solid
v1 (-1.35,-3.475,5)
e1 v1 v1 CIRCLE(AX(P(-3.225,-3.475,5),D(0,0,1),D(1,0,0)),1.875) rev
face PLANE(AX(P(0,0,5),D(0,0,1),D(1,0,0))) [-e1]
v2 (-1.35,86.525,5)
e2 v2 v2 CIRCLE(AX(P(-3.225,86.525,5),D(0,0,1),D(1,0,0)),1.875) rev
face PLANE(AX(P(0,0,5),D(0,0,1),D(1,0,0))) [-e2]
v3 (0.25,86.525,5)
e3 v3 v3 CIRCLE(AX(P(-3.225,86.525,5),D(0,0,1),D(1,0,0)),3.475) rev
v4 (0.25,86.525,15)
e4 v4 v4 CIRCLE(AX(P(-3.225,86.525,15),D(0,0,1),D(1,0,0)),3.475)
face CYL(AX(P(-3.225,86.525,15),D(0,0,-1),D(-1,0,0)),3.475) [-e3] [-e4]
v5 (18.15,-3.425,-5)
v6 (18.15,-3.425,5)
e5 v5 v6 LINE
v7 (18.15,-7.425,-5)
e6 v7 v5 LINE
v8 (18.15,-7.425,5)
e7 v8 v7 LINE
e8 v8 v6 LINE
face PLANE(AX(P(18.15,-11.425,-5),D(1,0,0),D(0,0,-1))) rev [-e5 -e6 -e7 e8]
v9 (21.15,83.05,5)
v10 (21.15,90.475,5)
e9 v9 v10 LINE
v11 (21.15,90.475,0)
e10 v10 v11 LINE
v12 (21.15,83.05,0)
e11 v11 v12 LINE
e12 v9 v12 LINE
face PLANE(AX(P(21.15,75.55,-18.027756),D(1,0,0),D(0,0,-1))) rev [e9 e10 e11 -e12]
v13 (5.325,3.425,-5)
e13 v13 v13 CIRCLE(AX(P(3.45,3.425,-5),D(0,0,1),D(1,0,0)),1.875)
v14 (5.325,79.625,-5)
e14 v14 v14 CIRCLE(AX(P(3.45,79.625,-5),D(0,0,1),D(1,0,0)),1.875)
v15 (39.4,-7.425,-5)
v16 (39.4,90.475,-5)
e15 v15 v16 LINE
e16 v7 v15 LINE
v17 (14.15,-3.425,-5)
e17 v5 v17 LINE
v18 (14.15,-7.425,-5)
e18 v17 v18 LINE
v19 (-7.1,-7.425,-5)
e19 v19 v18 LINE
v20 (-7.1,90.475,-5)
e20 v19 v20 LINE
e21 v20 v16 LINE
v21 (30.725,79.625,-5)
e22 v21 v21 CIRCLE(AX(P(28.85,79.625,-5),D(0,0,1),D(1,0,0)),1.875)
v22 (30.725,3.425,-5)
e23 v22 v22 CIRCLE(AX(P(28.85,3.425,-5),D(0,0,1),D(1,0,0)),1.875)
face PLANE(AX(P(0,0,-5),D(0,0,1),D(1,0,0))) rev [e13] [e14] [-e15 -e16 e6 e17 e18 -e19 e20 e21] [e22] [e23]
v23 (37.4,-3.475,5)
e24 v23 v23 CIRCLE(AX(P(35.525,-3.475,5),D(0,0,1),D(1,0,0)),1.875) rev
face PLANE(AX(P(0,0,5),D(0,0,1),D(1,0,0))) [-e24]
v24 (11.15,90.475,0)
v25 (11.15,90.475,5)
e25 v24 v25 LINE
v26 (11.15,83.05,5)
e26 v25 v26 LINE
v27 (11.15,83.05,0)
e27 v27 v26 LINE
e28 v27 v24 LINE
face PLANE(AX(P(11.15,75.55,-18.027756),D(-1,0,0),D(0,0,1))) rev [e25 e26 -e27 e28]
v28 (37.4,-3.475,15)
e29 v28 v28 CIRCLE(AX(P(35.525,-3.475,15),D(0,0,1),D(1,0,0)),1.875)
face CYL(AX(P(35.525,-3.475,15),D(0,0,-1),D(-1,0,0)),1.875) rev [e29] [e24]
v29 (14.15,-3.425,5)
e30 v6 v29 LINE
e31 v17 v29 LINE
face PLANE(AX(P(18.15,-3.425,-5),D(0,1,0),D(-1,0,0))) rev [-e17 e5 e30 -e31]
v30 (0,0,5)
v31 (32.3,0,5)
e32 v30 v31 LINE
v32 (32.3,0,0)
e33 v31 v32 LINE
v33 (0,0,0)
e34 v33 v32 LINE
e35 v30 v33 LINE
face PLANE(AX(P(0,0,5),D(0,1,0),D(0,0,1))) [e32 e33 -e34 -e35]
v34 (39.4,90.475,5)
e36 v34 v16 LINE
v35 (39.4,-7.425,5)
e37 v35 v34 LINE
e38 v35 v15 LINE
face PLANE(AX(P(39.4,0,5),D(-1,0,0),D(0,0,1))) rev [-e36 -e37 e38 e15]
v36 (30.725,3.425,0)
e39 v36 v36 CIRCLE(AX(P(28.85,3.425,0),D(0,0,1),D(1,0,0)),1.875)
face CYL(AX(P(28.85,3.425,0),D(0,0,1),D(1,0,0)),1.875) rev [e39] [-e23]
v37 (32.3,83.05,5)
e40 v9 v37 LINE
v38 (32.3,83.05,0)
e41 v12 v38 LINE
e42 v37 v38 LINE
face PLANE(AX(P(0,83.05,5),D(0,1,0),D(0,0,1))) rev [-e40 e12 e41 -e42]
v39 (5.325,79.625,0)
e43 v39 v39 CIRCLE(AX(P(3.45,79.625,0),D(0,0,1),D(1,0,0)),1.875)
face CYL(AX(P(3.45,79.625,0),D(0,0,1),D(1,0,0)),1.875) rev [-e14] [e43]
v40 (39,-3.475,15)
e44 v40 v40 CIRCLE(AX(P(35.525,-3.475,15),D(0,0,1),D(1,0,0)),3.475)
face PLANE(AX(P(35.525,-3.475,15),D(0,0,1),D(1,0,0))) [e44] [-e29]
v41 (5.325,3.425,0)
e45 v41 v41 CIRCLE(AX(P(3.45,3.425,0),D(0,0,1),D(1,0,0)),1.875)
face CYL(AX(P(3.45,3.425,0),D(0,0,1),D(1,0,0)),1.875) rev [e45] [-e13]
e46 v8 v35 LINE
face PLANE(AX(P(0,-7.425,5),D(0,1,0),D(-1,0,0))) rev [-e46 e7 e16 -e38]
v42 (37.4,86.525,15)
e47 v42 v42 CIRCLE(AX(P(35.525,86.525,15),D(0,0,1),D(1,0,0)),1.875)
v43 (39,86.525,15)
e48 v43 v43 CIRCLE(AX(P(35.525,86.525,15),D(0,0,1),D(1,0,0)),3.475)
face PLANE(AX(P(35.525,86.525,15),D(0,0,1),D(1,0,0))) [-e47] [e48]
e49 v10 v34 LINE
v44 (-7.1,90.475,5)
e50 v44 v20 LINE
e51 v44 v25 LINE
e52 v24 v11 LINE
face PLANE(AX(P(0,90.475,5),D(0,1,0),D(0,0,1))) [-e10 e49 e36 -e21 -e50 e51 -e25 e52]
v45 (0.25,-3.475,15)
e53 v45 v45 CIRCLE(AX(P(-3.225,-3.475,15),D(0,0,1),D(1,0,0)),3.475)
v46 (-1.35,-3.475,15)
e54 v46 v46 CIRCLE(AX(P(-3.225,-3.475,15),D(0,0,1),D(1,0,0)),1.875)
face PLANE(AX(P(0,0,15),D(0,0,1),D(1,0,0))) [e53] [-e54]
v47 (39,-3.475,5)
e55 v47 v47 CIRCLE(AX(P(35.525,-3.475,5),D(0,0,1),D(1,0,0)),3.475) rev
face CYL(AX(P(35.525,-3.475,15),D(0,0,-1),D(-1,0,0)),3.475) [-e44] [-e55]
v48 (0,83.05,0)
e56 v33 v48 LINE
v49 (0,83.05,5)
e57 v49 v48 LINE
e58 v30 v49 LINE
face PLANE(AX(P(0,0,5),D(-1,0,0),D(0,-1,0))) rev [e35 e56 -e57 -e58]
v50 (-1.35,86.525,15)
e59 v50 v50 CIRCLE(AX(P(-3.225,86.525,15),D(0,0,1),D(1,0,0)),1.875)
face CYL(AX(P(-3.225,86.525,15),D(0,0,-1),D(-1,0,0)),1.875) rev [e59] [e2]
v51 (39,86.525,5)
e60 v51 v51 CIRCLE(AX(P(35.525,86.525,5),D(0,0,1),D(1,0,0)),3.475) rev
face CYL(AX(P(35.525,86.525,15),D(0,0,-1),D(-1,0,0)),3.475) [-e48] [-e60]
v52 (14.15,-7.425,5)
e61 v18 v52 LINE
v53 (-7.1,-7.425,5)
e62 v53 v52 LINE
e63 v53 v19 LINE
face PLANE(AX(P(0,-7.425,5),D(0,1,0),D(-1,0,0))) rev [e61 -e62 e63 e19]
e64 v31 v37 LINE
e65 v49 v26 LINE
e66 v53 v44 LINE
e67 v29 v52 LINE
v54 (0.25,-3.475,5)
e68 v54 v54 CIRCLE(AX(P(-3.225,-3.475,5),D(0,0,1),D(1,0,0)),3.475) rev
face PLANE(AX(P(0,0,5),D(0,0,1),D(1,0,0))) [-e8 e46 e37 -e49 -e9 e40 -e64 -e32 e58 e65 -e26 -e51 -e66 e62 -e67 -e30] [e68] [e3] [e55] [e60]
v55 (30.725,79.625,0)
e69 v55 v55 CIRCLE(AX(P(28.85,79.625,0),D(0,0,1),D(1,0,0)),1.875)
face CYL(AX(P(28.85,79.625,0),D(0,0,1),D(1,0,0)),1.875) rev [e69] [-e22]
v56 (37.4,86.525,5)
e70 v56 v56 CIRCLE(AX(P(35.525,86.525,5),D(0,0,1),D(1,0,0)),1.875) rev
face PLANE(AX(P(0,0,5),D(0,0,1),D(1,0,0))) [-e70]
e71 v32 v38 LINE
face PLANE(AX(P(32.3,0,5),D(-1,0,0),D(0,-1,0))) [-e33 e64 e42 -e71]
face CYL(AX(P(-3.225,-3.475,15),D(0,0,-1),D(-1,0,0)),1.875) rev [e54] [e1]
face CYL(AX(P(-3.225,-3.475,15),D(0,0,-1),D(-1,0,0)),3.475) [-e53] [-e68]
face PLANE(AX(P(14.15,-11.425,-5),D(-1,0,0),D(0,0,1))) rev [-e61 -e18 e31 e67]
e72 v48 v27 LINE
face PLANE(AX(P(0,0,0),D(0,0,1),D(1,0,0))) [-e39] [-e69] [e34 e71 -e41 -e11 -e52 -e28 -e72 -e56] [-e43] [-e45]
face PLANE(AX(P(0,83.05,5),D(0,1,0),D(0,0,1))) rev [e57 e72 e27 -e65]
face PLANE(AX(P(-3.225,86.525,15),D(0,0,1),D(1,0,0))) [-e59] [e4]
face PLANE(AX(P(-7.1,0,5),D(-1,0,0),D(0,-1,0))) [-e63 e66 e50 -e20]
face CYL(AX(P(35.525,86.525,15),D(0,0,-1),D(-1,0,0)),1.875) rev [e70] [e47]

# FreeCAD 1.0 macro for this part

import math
import FreeCAD as App
import Part
import Sketcher
from FreeCAD import Vector
Q = App.Units.Quantity

doc = App.newDocument("Part")
params = doc.addObject("Spreadsheet::Sheet", "Params")
for row, (alias, value) in enumerate([
    ("sketch1_width", "46.5 mm"),
    ("sketch1_width2", "32.3 mm"),
    ("sketch1_height", "97.9 mm"),
    ("sketch1_height2", "83.05 mm"),
    ("pad1_length", "10 mm"),
    ("sketch2_width", "32.3 mm"),
    ("sketch2_height", "83.05 mm"),
    ("pad2_length", "5 mm"),
    ("sketch3_diameter", "3.75 mm"),
    ("hole_diameter", "3.75 mm"),
    ("sketch4_diameter", "6.95 mm"),
    ("sketch4_diameter2", "3.75 mm"),
    ("pad3_length", "15 mm"),
    ("sketch5_width", "10 mm"),
    ("sketch5_height", "15 mm"),
    ("pocket1_length", "100.187124 mm"),
    ("pocket1_length2", "5 mm"),
    ("sketch6_width", "4 mm"),
    ("sketch6_height", "8 mm"),
    ("sketch7_radius", "29 mm"),
    ("sketch7_radius2", "28.95 mm"),
    ("pad4_length", "97.55 mm"),
    ("sketch8_radius", "29 mm"),
    ("sketch8_radius2", "28.95 mm"),
], start=1):
    params.set(f"A{row}", alias)
    params.set(f"B{row}", "=" + value)
    params.setAlias(f"B{row}", alias)

body = doc.addObject("PartDesign::Body", "Body")

# Sketch on XY plane
sketch1 = body.newObject("Sketcher::SketchObject", "Sketch")
sketch1.AttachmentSupport = (doc.getObject("XY_Plane"), [""])
sketch1.MapMode = "FlatFace"
sketch1.addGeometry([
    Part.LineSegment(Vector(-7, 90, 0), Vector(-7, -7, 0)),  # 0
    Part.LineSegment(Vector(-7, -7, 0), Vector(39, -7, 0)),  # 1
    Part.LineSegment(Vector(39, -7, 0), Vector(39, 90, 0)),  # 2
    Part.LineSegment(Vector(39, 90, 0), Vector(-7, 90, 0)),  # 3
    Part.LineSegment(Vector(32, 0, 0), Vector(0, 0, 0)),  # 4
    Part.LineSegment(Vector(0, 0, 0), Vector(0, 83, 0)),  # 5
    Part.LineSegment(Vector(0, 83, 0), Vector(32, 83, 0)),  # 6
    Part.LineSegment(Vector(32, 83, 0), Vector(32, 0, 0)),  # 7
], False)
sketch1.addConstraint([
    Sketcher.Constraint("Coincident", 0, 2, 1, 1),
    Sketcher.Constraint("Coincident", 1, 2, 2, 1),
    Sketcher.Constraint("Coincident", 2, 2, 3, 1),
    Sketcher.Constraint("Coincident", 3, 2, 0, 1),
    Sketcher.Constraint("Coincident", 4, 2, 5, 1),
    Sketcher.Constraint("Coincident", 5, 2, 6, 1),
    Sketcher.Constraint("Coincident", 6, 2, 7, 1),
    Sketcher.Constraint("Coincident", 7, 2, 4, 1),
    Sketcher.Constraint("Vertical", 0),
    Sketcher.Constraint("Horizontal", 1),
    Sketcher.Constraint("Vertical", 2),
    Sketcher.Constraint("Horizontal", 3),
    Sketcher.Constraint("Horizontal", 4),
    Sketcher.Constraint("Vertical", 5),
    Sketcher.Constraint("Horizontal", 6),
    Sketcher.Constraint("Vertical", 7),
    Sketcher.Constraint("Coincident", 4, 2, -1, 1),
    Sketcher.Constraint("DistanceX", 1, 1, 1, 2, Q("46.5 mm")),
    Sketcher.Constraint("DistanceX", 4, 2, 4, 1, Q("32.3 mm")),
    Sketcher.Constraint("DistanceY", 0, 2, 0, 1, Q("97.9 mm")),
    Sketcher.Constraint("DistanceY", 5, 1, 5, 2, Q("83.05 mm")),
    Sketcher.Constraint("DistanceX", 0, 2, -1, 1, Q("7.1 mm")),
    Sketcher.Constraint("DistanceY", 0, 2, -1, 1, Q("7.425 mm")),
])
sketch1.setExpression("Constraints[17]", "Params.sketch1_width")
sketch1.setExpression("Constraints[18]", "Params.sketch1_width2")
sketch1.setExpression("Constraints[19]", "Params.sketch1_height")
sketch1.setExpression("Constraints[20]", "Params.sketch1_height2")
pad1 = body.newObject("PartDesign::Pad", "Pad")
pad1.Profile = sketch1
pad1.setExpression("Length", "Params.pad1_length")
pad1.Midplane = True

# Sketch on XY plane
sketch2 = body.newObject("Sketcher::SketchObject", "Sketch001")
sketch2.AttachmentSupport = (doc.getObject("XY_Plane"), [""])
sketch2.MapMode = "FlatFace"
sketch2.addGeometry([
    Part.LineSegment(Vector(0, 83, 0), Vector(0, 0, 0)),
    Part.LineSegment(Vector(0, 0, 0), Vector(32, 0, 0)),
    Part.LineSegment(Vector(32, 0, 0), Vector(32, 83, 0)),
    Part.LineSegment(Vector(32, 83, 0), Vector(0, 83, 0)),
], False)
sketch2.addConstraint([
    Sketcher.Constraint("Coincident", 0, 2, 1, 1),
    Sketcher.Constraint("Coincident", 1, 2, 2, 1),
    Sketcher.Constraint("Coincident", 2, 2, 3, 1),
    Sketcher.Constraint("Coincident", 3, 2, 0, 1),
    Sketcher.Constraint("Vertical", 0),
    Sketcher.Constraint("Horizontal", 1),
    Sketcher.Constraint("Vertical", 2),
    Sketcher.Constraint("Horizontal", 3),
    Sketcher.Constraint("Coincident", 0, 2, -1, 1),
    Sketcher.Constraint("DistanceX", 1, 1, 1, 2, Q("32.3 mm")),
    Sketcher.Constraint("DistanceY", 0, 2, 0, 1, Q("83.05 mm")),
])
sketch2.setExpression("Constraints[9]", "Params.sketch2_width")
sketch2.setExpression("Constraints[10]", "Params.sketch2_height")
pad2 = body.newObject("PartDesign::Pad", "Pad001")
pad2.Profile = sketch2
pad2.setExpression("Length", "Params.pad2_length")
pad2.Reversed = True

# Sketch on XY plane
sketch3 = body.newObject("Sketcher::SketchObject", "Sketch002")
sketch3.AttachmentSupport = (doc.getObject("XY_Plane"), [""])
sketch3.MapMode = "FlatFace"
sketch3.addGeometry([
    Part.Circle(Vector(3.5, 79.6, 0), Vector(0, 0, 1), 1.9),
    Part.Circle(Vector(28.9, 79.6, 0), Vector(0, 0, 1), 1.9),
    Part.Circle(Vector(3.5, 3.4, 0), Vector(0, 0, 1), 1.9),
    Part.Circle(Vector(28.9, 3.4, 0), Vector(0, 0, 1), 1.9),
], False)
sketch3.addConstraint([
    Sketcher.Constraint("Equal", 0, 1),
    Sketcher.Constraint("Equal", 1, 2),
    Sketcher.Constraint("Equal", 2, 3),
    Sketcher.Constraint("Horizontal", 0, 3, 1, 3),
    Sketcher.Constraint("Horizontal", 2, 3, 3, 3),
    Sketcher.Constraint("Vertical", 0, 3, 2, 3),
    Sketcher.Constraint("Vertical", 1, 3, 3, 3),
    Sketcher.Constraint("Diameter", 0, Q("3.75 mm")),
    Sketcher.Constraint("DistanceX", 0, 3, 1, 3, Q("25.4 mm")),
    Sketcher.Constraint("DistanceY", 2, 3, 0, 3, Q("76.2 mm")),
    Sketcher.Constraint("DistanceX", -1, 1, 0, 3, Q("3.45 mm")),
    Sketcher.Constraint("DistanceY", -1, 1, 0, 3, Q("79.625 mm")),
])
sketch3.setExpression("Constraints[7]", "Params.sketch3_diameter")
doc.recompute()
hole = body.newObject("PartDesign::Hole", "Hole")
hole.Profile = sketch3
hole.ThreadType = "None"
hole.setExpression("Diameter", "Params.hole_diameter")
hole.DepthType = "ThroughAll"

# Sketch on XY plane
sketch4 = body.newObject("Sketcher::SketchObject", "Sketch003")
sketch4.AttachmentSupport = (doc.getObject("XY_Plane"), [""])
sketch4.MapMode = "FlatFace"
sketch4.addGeometry([
    Part.Circle(Vector(-3.2, 86.5, 0), Vector(0, 0, 1), 3.5),  # 0
    Part.Circle(Vector(-3.2, 86.5, 0), Vector(0, 0, 1), 1.9),  # 1
    Part.Circle(Vector(35.5, 86.5, 0), Vector(0, 0, 1), 3.5),  # 2
    Part.Circle(Vector(35.5, 86.5, 0), Vector(0, 0, 1), 1.9),  # 3
    Part.Circle(Vector(-3.2, -3.5, 0), Vector(0, 0, 1), 3.5),  # 4
    Part.Circle(Vector(-3.2, -3.5, 0), Vector(0, 0, 1), 1.9),  # 5
    Part.Circle(Vector(35.5, -3.5, 0), Vector(0, 0, 1), 3.5),  # 6
    Part.Circle(Vector(35.5, -3.5, 0), Vector(0, 0, 1), 1.9),  # 7
], False)
sketch4.addConstraint([
    Sketcher.Constraint("Coincident", 1, 3, 0, 3),
    Sketcher.Constraint("Coincident", 3, 3, 2, 3),
    Sketcher.Constraint("Coincident", 5, 3, 4, 3),
    Sketcher.Constraint("Coincident", 7, 3, 6, 3),
    Sketcher.Constraint("Equal", 0, 2),
    Sketcher.Constraint("Equal", 1, 3),
    Sketcher.Constraint("Equal", 2, 4),
    Sketcher.Constraint("Equal", 3, 5),
    Sketcher.Constraint("Equal", 4, 6),
    Sketcher.Constraint("Equal", 5, 7),
    Sketcher.Constraint("Horizontal", 1, 3, 2, 3),
    Sketcher.Constraint("Horizontal", 5, 3, 6, 3),
    Sketcher.Constraint("Vertical", 1, 3, 4, 3),
    Sketcher.Constraint("Vertical", 3, 3, 6, 3),
    Sketcher.Constraint("Diameter", 0, Q("6.95 mm")),
    Sketcher.Constraint("Diameter", 1, Q("3.75 mm")),
    Sketcher.Constraint("DistanceY", 4, 3, 0, 3, Q("90 mm")),
    Sketcher.Constraint("DistanceX", 0, 3, 2, 3, Q("38.75 mm")),
    Sketcher.Constraint("DistanceX", 0, 3, -1, 1, Q("3.225 mm")),
    Sketcher.Constraint("DistanceY", -1, 1, 0, 3, Q("86.525 mm")),
])
sketch4.setExpression("Constraints[14]", "Params.sketch4_diameter")
sketch4.setExpression("Constraints[15]", "Params.sketch4_diameter2")
pad3 = body.newObject("PartDesign::Pad", "Pad002")
pad3.Profile = sketch4
pad3.setExpression("Length", "Params.pad3_length")

# Sketch on XY plane
sketch5 = body.newObject("Sketcher::SketchObject", "Sketch004")
sketch5.AttachmentSupport = (doc.getObject("XY_Plane"), [""])
sketch5.MapMode = "FlatFace"
sketch5.AttachmentOffset = App.Placement(Vector(0, 0, 5), App.Rotation())
sketch5.addGeometry([
    Part.LineSegment(Vector(11, 91, 0), Vector(11, 76, 0)),
    Part.LineSegment(Vector(11, 76, 0), Vector(21, 76, 0)),
    Part.LineSegment(Vector(21, 76, 0), Vector(21, 91, 0)),
    Part.LineSegment(Vector(21, 91, 0), Vector(11, 91, 0)),
], False)
sketch5.addConstraint([
    Sketcher.Constraint("Coincident", 0, 2, 1, 1),
    Sketcher.Constraint("Coincident", 1, 2, 2, 1),
    Sketcher.Constraint("Coincident", 2, 2, 3, 1),
    Sketcher.Constraint("Coincident", 3, 2, 0, 1),
    Sketcher.Constraint("Vertical", 0),
    Sketcher.Constraint("Horizontal", 1),
    Sketcher.Constraint("Vertical", 2),
    Sketcher.Constraint("Horizontal", 3),
    Sketcher.Constraint("DistanceX", 1, 1, 1, 2, Q("10 mm")),
    Sketcher.Constraint("DistanceY", 0, 2, 0, 1, Q("15 mm")),
    Sketcher.Constraint("DistanceX", -1, 1, 0, 2, Q("11.15 mm")),
    Sketcher.Constraint("DistanceY", -1, 1, 0, 2, Q("75.55 mm")),
])
sketch5.setExpression("Constraints[8]", "Params.sketch5_width")
sketch5.setExpression("Constraints[9]", "Params.sketch5_height")
pocket1 = body.newObject("PartDesign::Pocket", "Pocket")
pocket1.Profile = sketch5
pocket1.Type = "TwoLengths"
pocket1.setExpression("Length", "Params.pocket1_length")
pocket1.setExpression("Length2", "Params.pocket1_length2")
pocket1.Reversed = True

# Sketch on XY plane
sketch6 = body.newObject("Sketcher::SketchObject", "Sketch005")
sketch6.AttachmentSupport = (doc.getObject("XY_Plane"), [""])
sketch6.MapMode = "FlatFace"
sketch6.AttachmentOffset = App.Placement(Vector(0, 0, 5), App.Rotation())
sketch6.addGeometry([
    Part.LineSegment(Vector(14.2, -3.4, 0), Vector(14.2, -11.4, 0)),
    Part.LineSegment(Vector(14.2, -11.4, 0), Vector(18.1, -11.4, 0)),
    Part.LineSegment(Vector(18.1, -11.4, 0), Vector(18.1, -3.4, 0)),
    Part.LineSegment(Vector(18.1, -3.4, 0), Vector(14.2, -3.4, 0)),
], False)
sketch6.addConstraint([
    Sketcher.Constraint("Coincident", 0, 2, 1, 1),
    Sketcher.Constraint("Coincident", 1, 2, 2, 1),
    Sketcher.Constraint("Coincident", 2, 2, 3, 1),
    Sketcher.Constraint("Coincident", 3, 2, 0, 1),
    Sketcher.Constraint("Vertical", 0),
    Sketcher.Constraint("Horizontal", 1),
    Sketcher.Constraint("Vertical", 2),
    Sketcher.Constraint("Horizontal", 3),
    Sketcher.Constraint("DistanceX", 1, 1, 1, 2, Q("4 mm")),
    Sketcher.Constraint("DistanceY", 0, 2, 0, 1, Q("8 mm")),
    Sketcher.Constraint("DistanceX", -1, 1, 0, 2, Q("14.15 mm")),
    Sketcher.Constraint("DistanceY", 0, 2, -1, 1, Q("11.425 mm")),
])
sketch6.setExpression("Constraints[8]", "Params.sketch6_width")
sketch6.setExpression("Constraints[9]", "Params.sketch6_height")
pocket2 = body.newObject("PartDesign::Pocket", "Pocket001")
pocket2.Profile = sketch6
pocket2.Type = "ThroughAll"
body2 = doc.addObject("PartDesign::Body", "Body001")

# Sketch on XZ plane
sketch7 = body2.newObject("Sketcher::SketchObject", "Sketch006")
sketch7.AttachmentSupport = (doc.getObject("XZ_Plane001"), [""])
sketch7.MapMode = "FlatFace"
sketch7.AttachmentOffset = App.Placement(Vector(0, 0, -90.475), App.Rotation())
sketch7.addGeometry([
    Part.LineSegment(Vector(-12.28, 5.44, 0), Vector(-12.33, 5.44, 0)),
    Part.ArcOfCircle(Part.Circle(Vector(16.15, 0, 0), Vector(0, 0, 1), 29), math.radians(11), math.radians(169)),
    Part.LineSegment(Vector(44.62, 5.54, 0), Vector(44.56, 5.54, 0)),
    Part.ArcOfCircle(Part.Circle(Vector(16.15, 0, 0), Vector(0, 0, 1), 28.95), math.radians(11), math.radians(169)),
], False)
sketch7.addConstraint([
    Sketcher.Constraint("Coincident", 0, 2, 1, 2),
    Sketcher.Constraint("Coincident", 1, 1, 2, 1),
    Sketcher.Constraint("Coincident", 2, 2, 3, 1),
    Sketcher.Constraint("Coincident", 3, 2, 0, 1),
    Sketcher.Constraint("Horizontal", 0),
    Sketcher.Constraint("Horizontal", 2),
    Sketcher.Constraint("Coincident", 3, 3, 1, 3),
    Sketcher.Constraint("PointOnObject", 1, 3, -1),
    Sketcher.Constraint("Radius", 1, Q("29 mm")),
    Sketcher.Constraint("Radius", 3, Q("28.95 mm")),
    Sketcher.Constraint("DistanceX", -1, 1, 1, 3, Q("16.15 mm")),
    Sketcher.Constraint("DistanceX", -1, 1, 1, 1, Q("44.615111 mm")),
    Sketcher.Constraint("DistanceY", 0, 2, 1, 1, Q("0.10229 mm")),
])
sketch7.setExpression("Constraints[8]", "Params.sketch7_radius")
sketch7.setExpression("Constraints[9]", "Params.sketch7_radius2")
pad4 = body2.newObject("PartDesign::Pad", "Pad003")
pad4.Profile = sketch7
pad4.setExpression("Length", "Params.pad4_length")

# Sketch on XZ plane
sketch8 = body2.newObject("Sketcher::SketchObject", "Sketch007")
sketch8.AttachmentSupport = (doc.getObject("XZ_Plane001"), [""])
sketch8.MapMode = "FlatFace"
sketch8.AttachmentOffset = App.Placement(Vector(0, 0, -90.475), App.Rotation())
sketch8.addGeometry([
    Part.LineSegment(Vector(-12.28, 5.44, 0), Vector(-12.33, 5.44, 0)),
    Part.ArcOfCircle(Part.Circle(Vector(16.15, 0, 0), Vector(0, 0, 1), 29), math.radians(11), math.radians(169)),
    Part.LineSegment(Vector(44.62, 5.54, 0), Vector(44.56, 5.54, 0)),
    Part.ArcOfCircle(Part.Circle(Vector(16.15, 0, 0), Vector(0, 0, 1), 28.95), math.radians(11), math.radians(169)),
], False)
sketch8.addConstraint([
    Sketcher.Constraint("Coincident", 0, 2, 1, 2),
    Sketcher.Constraint("Coincident", 1, 1, 2, 1),
    Sketcher.Constraint("Coincident", 2, 2, 3, 1),
    Sketcher.Constraint("Coincident", 3, 2, 0, 1),
    Sketcher.Constraint("Horizontal", 0),
    Sketcher.Constraint("Horizontal", 2),
    Sketcher.Constraint("Coincident", 3, 3, 1, 3),
    Sketcher.Constraint("PointOnObject", 1, 3, -1),
    Sketcher.Constraint("Radius", 1, Q("29 mm")),
    Sketcher.Constraint("Radius", 3, Q("28.95 mm")),
    Sketcher.Constraint("DistanceX", -1, 1, 1, 3, Q("16.15 mm")),
    Sketcher.Constraint("DistanceX", -1, 1, 1, 1, Q("44.615111 mm")),
    Sketcher.Constraint("DistanceY", 0, 2, 1, 1, Q("0.10229 mm")),
])
sketch8.setExpression("Constraints[8]", "Params.sketch8_radius")
sketch8.setExpression("Constraints[9]", "Params.sketch8_radius2")
pocket3 = body2.newObject("PartDesign::Pocket", "Pocket002")
pocket3.Profile = sketch8
pocket3.Type = "ThroughAll"
pocket3.Midplane = True

doc.recompute()
